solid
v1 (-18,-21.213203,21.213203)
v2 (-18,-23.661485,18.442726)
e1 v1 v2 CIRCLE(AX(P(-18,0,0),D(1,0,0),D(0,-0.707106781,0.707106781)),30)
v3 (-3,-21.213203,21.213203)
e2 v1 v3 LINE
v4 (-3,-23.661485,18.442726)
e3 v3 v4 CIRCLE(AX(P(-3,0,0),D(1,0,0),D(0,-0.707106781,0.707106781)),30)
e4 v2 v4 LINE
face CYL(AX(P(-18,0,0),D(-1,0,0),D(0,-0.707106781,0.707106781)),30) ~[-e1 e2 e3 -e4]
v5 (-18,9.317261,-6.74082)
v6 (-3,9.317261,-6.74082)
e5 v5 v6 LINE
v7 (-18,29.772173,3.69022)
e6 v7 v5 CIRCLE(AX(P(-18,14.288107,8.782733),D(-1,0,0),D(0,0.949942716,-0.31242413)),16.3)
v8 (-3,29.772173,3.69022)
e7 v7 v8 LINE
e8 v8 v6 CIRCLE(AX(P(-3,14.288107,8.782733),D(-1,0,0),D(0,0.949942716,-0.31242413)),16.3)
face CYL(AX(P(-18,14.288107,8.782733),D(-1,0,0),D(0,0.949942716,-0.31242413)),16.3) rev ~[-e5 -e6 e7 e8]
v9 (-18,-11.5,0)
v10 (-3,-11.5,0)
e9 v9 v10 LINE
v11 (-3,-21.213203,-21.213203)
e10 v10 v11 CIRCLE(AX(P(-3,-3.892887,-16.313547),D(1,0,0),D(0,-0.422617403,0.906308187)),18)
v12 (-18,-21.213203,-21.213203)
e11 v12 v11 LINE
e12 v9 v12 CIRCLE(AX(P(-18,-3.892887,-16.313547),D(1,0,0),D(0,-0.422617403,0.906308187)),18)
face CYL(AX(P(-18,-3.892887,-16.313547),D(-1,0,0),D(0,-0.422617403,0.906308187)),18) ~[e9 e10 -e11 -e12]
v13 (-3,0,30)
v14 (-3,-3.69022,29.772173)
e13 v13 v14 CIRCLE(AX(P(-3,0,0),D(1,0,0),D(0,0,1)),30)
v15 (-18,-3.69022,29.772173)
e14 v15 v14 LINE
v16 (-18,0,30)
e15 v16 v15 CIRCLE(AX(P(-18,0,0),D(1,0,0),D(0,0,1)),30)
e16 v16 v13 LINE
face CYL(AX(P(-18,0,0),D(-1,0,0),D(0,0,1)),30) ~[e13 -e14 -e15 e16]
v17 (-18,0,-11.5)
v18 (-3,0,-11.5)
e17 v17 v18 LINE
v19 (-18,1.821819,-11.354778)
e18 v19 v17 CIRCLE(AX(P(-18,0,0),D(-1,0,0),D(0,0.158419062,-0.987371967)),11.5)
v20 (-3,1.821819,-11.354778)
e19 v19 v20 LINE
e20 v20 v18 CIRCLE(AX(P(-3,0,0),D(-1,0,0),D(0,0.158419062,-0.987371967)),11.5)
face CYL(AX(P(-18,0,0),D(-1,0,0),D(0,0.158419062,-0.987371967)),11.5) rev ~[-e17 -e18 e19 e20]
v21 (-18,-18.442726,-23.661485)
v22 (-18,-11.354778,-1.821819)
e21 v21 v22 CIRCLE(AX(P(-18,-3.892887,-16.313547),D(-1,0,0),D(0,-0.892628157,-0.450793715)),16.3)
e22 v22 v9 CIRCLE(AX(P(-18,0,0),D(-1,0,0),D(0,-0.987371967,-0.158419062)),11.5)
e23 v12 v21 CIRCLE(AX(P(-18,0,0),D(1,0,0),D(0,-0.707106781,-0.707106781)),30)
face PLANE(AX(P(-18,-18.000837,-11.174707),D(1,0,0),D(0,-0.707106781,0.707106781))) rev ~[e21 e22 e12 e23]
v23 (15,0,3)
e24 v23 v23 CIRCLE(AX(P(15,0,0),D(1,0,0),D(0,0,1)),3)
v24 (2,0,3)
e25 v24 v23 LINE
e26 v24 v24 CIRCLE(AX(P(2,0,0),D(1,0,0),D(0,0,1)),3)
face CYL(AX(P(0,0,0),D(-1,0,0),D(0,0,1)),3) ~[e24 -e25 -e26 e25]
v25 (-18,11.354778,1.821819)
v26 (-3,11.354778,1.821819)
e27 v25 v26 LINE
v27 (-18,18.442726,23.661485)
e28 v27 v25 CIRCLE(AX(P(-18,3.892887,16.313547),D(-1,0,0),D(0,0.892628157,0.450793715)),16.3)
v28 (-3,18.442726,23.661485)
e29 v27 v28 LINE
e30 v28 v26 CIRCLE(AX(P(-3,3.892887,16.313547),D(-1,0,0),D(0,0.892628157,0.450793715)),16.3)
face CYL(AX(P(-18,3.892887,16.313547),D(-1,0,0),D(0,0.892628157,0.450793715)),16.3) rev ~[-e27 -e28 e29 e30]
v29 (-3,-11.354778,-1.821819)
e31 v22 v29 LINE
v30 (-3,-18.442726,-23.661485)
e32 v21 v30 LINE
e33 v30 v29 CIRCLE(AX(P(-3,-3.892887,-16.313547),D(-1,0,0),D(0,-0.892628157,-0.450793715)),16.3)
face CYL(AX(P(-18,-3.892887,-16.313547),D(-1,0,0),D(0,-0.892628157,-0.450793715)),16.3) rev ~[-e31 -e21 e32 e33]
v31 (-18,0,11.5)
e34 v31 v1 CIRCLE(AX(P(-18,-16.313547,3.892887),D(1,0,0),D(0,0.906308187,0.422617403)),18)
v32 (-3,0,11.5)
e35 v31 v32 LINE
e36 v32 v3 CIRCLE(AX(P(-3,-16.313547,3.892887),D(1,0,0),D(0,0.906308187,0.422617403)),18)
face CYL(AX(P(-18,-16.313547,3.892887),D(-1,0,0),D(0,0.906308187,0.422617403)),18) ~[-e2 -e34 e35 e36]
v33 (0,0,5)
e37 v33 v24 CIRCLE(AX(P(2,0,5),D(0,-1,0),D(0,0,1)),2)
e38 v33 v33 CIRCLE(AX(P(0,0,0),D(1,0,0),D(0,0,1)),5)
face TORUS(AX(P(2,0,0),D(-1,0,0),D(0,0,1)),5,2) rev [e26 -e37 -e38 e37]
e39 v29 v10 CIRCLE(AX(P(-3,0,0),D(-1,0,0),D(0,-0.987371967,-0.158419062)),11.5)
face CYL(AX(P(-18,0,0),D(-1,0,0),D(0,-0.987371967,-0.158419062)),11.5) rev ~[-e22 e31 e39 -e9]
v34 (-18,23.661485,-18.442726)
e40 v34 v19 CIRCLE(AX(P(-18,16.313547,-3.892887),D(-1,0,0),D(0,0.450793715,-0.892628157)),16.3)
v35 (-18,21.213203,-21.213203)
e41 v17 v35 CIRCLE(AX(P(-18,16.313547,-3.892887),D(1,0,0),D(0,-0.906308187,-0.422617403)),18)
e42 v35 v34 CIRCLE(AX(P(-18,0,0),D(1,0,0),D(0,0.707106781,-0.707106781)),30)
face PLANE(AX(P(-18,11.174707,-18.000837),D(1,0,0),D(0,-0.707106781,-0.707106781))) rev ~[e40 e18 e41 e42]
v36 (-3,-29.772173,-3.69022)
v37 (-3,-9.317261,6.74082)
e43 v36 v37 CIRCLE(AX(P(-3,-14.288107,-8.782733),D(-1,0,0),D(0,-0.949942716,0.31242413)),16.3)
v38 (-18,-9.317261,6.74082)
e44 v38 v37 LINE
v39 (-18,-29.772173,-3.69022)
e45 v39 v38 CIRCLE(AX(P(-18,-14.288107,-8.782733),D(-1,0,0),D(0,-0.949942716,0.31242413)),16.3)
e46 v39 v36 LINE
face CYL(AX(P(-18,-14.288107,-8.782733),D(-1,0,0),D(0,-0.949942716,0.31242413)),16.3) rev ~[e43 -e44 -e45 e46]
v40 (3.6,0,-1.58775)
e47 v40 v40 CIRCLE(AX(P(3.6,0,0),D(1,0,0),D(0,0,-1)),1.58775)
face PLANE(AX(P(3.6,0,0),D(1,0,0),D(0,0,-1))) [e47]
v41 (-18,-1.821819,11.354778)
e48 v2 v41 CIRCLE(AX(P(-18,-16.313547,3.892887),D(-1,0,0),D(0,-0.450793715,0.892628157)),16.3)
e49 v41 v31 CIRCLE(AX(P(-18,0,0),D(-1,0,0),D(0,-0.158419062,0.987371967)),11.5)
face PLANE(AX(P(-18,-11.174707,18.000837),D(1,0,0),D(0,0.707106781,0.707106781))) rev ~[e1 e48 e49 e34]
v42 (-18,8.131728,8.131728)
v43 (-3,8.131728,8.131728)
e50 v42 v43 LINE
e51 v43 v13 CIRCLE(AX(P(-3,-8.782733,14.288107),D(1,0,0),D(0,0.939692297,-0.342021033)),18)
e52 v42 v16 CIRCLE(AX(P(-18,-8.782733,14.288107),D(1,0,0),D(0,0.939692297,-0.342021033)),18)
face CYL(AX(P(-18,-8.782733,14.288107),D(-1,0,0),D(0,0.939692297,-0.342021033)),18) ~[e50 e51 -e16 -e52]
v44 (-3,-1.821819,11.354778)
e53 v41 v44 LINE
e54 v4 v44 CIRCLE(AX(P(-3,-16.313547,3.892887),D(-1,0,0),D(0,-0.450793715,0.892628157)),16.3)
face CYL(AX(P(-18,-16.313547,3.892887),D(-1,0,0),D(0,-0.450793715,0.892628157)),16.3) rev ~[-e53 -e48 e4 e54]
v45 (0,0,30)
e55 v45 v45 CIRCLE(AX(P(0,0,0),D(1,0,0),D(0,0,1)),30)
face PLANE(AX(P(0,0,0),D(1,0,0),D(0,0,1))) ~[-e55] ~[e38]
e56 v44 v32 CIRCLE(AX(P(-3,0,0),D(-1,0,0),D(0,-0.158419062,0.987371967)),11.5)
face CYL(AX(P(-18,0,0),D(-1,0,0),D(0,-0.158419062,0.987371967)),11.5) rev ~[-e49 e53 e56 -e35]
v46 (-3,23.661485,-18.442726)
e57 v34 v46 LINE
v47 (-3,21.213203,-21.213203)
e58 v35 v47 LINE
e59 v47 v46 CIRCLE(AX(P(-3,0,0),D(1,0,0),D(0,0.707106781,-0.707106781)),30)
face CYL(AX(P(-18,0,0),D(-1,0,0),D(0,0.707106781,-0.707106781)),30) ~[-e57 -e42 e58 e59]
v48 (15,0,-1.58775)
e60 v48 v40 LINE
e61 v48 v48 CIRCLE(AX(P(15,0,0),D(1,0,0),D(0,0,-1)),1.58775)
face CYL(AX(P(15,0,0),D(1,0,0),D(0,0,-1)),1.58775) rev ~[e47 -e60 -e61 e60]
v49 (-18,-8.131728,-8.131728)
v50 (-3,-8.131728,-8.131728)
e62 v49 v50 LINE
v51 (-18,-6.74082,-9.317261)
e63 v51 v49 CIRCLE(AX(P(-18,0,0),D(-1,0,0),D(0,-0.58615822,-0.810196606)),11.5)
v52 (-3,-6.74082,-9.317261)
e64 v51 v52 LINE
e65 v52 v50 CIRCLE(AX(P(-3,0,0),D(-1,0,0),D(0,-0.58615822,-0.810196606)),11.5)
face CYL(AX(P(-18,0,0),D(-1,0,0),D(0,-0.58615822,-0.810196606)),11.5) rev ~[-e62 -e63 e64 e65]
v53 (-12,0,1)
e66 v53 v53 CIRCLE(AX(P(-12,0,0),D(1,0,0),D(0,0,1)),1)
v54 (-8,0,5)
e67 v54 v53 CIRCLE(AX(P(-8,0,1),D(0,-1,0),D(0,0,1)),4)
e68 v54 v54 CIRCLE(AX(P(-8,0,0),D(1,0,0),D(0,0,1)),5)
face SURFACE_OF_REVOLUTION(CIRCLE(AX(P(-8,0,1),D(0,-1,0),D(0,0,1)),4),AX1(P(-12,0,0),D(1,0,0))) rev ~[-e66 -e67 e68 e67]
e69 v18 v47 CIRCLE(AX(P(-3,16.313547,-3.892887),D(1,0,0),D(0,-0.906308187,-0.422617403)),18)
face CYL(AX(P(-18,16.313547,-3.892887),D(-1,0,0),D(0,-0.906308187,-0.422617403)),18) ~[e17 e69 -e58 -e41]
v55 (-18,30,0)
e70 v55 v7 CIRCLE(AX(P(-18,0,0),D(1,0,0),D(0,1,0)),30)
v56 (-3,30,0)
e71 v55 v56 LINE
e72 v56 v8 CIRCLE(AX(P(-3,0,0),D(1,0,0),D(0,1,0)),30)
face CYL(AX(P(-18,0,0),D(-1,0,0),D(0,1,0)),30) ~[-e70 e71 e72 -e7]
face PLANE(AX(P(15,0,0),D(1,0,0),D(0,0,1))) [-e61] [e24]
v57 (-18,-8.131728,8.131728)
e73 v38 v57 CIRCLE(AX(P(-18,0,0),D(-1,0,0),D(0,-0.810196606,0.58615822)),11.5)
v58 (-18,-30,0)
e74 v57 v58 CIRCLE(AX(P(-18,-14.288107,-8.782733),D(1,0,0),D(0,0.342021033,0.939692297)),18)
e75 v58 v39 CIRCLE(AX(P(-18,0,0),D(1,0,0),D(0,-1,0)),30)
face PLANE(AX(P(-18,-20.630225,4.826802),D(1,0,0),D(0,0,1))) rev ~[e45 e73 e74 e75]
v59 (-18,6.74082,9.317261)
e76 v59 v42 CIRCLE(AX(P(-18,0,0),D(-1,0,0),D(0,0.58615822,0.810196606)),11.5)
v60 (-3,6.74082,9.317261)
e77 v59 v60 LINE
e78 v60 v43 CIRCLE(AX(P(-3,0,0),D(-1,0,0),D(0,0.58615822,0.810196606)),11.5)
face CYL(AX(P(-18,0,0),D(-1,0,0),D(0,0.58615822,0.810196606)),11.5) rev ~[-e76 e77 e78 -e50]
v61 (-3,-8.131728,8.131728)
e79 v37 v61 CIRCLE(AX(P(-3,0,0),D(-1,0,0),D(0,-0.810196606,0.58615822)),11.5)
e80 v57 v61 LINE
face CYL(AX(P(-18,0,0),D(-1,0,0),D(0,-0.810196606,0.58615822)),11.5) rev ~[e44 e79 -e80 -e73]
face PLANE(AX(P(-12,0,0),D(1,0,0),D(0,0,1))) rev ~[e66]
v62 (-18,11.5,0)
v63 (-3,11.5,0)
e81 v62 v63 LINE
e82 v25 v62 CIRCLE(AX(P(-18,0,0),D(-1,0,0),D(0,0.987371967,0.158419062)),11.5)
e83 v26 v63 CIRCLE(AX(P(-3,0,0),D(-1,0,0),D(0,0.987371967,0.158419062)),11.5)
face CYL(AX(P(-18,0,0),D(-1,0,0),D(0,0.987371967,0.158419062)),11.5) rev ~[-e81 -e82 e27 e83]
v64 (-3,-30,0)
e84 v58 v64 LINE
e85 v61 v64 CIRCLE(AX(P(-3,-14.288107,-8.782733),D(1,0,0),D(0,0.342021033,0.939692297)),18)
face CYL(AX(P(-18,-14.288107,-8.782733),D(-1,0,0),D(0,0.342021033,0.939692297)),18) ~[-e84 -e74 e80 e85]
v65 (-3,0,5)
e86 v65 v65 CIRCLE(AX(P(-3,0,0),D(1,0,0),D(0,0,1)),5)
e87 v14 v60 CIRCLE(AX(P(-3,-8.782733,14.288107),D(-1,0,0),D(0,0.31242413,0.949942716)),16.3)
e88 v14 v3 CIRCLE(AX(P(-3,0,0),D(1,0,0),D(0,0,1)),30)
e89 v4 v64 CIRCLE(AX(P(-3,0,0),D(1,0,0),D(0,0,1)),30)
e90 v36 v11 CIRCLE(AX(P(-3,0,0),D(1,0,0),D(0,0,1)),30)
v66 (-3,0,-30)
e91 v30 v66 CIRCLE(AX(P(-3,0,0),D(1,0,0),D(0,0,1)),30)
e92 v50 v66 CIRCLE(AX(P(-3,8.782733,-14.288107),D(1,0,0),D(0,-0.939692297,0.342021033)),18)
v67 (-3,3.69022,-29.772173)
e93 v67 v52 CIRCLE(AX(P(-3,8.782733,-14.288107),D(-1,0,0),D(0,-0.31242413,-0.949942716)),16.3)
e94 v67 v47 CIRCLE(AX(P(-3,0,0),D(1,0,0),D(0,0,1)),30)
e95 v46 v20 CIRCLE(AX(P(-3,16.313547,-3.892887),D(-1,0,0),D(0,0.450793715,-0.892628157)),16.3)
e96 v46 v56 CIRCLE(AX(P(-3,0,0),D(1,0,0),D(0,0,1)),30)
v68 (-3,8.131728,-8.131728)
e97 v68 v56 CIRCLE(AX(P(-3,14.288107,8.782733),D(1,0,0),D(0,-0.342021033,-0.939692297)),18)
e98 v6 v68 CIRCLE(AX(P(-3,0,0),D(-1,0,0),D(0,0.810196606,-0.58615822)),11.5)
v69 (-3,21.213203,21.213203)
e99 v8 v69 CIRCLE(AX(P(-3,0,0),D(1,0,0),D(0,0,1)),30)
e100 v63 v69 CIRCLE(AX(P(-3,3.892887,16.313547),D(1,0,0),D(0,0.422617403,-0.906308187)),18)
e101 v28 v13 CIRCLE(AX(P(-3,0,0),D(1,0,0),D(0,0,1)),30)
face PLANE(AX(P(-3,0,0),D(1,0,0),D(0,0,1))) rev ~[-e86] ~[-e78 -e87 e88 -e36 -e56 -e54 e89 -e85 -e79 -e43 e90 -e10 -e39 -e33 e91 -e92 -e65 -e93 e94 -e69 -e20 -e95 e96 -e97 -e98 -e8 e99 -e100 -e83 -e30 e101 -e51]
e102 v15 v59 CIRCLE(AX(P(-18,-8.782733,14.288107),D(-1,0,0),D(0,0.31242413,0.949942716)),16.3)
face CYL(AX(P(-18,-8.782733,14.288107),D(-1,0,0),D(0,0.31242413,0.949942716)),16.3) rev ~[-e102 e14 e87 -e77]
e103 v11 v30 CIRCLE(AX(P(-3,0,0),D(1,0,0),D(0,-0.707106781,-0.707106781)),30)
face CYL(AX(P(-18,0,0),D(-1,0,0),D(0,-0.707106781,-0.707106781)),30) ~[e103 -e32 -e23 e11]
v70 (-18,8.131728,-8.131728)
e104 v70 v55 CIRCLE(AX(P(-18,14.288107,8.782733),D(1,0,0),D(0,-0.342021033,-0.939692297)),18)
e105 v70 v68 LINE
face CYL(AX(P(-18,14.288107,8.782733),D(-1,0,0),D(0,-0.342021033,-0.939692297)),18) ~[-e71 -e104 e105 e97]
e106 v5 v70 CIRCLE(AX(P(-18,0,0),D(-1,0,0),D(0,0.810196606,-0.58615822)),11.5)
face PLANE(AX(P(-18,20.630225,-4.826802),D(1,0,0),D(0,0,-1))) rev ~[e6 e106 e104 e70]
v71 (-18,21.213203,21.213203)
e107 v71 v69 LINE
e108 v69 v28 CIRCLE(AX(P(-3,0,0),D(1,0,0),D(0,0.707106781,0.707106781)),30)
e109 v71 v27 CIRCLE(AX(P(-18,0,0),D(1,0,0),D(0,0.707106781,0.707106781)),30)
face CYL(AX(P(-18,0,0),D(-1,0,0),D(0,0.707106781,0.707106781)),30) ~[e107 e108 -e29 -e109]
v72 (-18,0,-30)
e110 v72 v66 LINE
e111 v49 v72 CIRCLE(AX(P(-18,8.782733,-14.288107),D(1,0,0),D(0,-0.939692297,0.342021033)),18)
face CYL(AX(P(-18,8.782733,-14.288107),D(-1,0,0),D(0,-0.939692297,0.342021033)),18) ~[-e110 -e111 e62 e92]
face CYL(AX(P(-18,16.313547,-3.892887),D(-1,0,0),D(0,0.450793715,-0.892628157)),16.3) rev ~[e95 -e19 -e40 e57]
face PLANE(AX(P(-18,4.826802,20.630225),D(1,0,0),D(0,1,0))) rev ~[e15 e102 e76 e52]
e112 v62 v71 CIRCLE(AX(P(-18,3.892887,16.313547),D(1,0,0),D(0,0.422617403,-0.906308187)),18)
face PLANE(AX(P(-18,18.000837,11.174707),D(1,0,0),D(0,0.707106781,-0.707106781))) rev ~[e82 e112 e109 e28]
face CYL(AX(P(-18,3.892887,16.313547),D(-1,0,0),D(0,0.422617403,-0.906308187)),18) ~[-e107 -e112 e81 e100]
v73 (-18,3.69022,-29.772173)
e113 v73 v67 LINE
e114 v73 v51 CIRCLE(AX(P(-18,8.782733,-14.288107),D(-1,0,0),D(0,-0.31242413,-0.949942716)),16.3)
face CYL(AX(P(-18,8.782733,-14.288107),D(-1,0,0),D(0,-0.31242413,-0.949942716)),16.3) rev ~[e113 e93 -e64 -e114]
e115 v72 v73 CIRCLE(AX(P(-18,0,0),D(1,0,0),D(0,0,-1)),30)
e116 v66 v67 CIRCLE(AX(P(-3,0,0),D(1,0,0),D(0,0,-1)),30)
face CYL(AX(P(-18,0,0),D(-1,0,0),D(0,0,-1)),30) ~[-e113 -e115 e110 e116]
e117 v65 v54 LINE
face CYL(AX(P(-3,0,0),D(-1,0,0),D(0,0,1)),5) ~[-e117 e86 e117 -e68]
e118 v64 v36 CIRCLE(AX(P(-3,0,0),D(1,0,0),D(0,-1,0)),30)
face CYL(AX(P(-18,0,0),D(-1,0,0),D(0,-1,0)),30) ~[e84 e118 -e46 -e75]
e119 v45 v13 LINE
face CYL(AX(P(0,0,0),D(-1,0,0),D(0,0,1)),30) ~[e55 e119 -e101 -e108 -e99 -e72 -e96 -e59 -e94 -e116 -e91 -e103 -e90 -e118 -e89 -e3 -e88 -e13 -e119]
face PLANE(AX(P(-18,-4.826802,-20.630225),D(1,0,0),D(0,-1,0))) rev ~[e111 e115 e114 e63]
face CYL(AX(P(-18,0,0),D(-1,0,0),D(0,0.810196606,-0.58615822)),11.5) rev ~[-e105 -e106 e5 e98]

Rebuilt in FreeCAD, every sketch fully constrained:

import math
import FreeCAD as App
import Part
import Sketcher

V = App.Vector


def edges_at(feature, points):
    """Names of the edges that pass closest to the given points."""
    edges = feature.Shape.Edges
    near = lambda p: min(range(len(edges)), key=lambda i: edges[i].distToShape(Part.Vertex(*p))[0])
    return sorted({f"Edge{near(p) + 1}" for p in points})

doc = App.newDocument("Part")
body = doc.addObject("PartDesign::Body", "Body")

# Sketch on XZ plane
sketch1 = doc.addObject("Sketcher::SketchObject", "Sketch")
body.addObject(sketch1)
sketch1.AttachmentSupport = (doc.XZ_Plane, [""])
sketch1.MapMode = "FlatFace"
sketch1.addGeometry([
    Part.LineSegment(V(0, 0, 0), V(0, -30, 0)),  # 0
    Part.LineSegment(V(0, -30, 0), V(-3, -30, 0)),  # 1
    Part.LineSegment(V(-3, -30, 0), V(-3, -5, 0)),  # 2
    Part.LineSegment(V(-3, -5, 0), V(-8, -5, 0)),  # 3
    Part.ArcOfCircle(Part.Circle(V(-8, -1, 0), V(0, 0, 1), 4), math.radians(180), math.radians(270)),  # 4
    Part.LineSegment(V(-12, -1, 0), V(-12, 0, 0)),  # 5
    Part.LineSegment(V(-12, 0, 0), V(0, 0, 0)),  # 6
], False)
sketch1.addConstraint([
    Sketcher.Constraint("Coincident", 0, 2, 1, 1),
    Sketcher.Constraint("Coincident", 1, 2, 2, 1),
    Sketcher.Constraint("Coincident", 2, 2, 3, 1),
    Sketcher.Constraint("Tangent", 3, 2, 4, 2),
    Sketcher.Constraint("Tangent", 4, 1, 5, 1),
    Sketcher.Constraint("Coincident", 5, 2, 6, 1),
    Sketcher.Constraint("Coincident", 6, 2, 0, 1),
    Sketcher.Constraint("Vertical", 0),
    Sketcher.Constraint("Horizontal", 1),
    Sketcher.Constraint("Vertical", 2),
    Sketcher.Constraint("Horizontal", 3),
    Sketcher.Constraint("Vertical", 5),
    Sketcher.Constraint("Horizontal", 6),
    Sketcher.Constraint("Coincident", 6, 2, -1, 1),
    Sketcher.Constraint("Radius", 4, 4.0),
    Sketcher.Constraint("DistanceX", 1, 2, 1, 1, 3.0),
    Sketcher.Constraint("DistanceX", 3, 2, 3, 1, 5.0),
    Sketcher.Constraint("DistanceY", 0, 2, 0, 1, 30.0),
    Sketcher.Constraint("DistanceY", 2, 1, 2, 2, 25.0),
])
revolution = doc.addObject("PartDesign::Revolution", "Revolution")
body.addObject(revolution)
revolution.Profile = sketch1
revolution.ReferenceAxis = (sketch1, ["H_Axis"])
revolution.Angle = 360

# Sketch on YZ plane
sketch2 = doc.addObject("Sketcher::SketchObject", "Sketch001")
body.addObject(sketch2)
sketch2.AttachmentSupport = (doc.YZ_Plane, [""])
sketch2.MapMode = "FlatFace"
sketch2.AttachmentOffset = App.Placement(V(0, 0, -18), App.Rotation())
sketch2.addGeometry([
    Part.ArcOfCircle(Part.Circle(V(0, 0, 0), V(0, 0, 1), 11.5), math.radians(-45), math.radians(-35.88)),
    Part.ArcOfCircle(Part.Circle(V(14.3, 8.8, 0), V(0, 0, 1), 16.3), math.radians(-108), math.radians(-18)),
    Part.ArcOfCircle(Part.Circle(V(0, 0, 0), V(0, 0, 1), 30), math.radians(0), math.radians(7.07)),
    Part.ArcOfCircle(Part.Circle(V(14.3, 8.8, 0), V(0, 0, 1), 18), math.radians(-110), math.radians(-29)),
], False)
sketch2.addConstraint([
    Sketcher.Constraint("Coincident", 0, 2, 1, 1),
    Sketcher.Constraint("Coincident", 1, 2, 2, 2),
    Sketcher.Constraint("Coincident", 2, 1, 3, 2),
    Sketcher.Constraint("Coincident", 3, 1, 0, 1),
    Sketcher.Constraint("Coincident", 0, 3, -1, 1),
    Sketcher.Constraint("Coincident", 2, 3, -1, 1),
    Sketcher.Constraint("Coincident", 3, 3, 1, 3),
    Sketcher.Constraint("PointOnObject", 2, 1, -1),
    Sketcher.Constraint("Radius", 2, 30.0),
    Sketcher.Constraint("Radius", 3, 18.0),
    Sketcher.Constraint("Radius", 0, 11.5),
    Sketcher.Constraint("Radius", 1, 16.3),
    Sketcher.Constraint("DistanceX", -1, 1, 0, 2, 9.317261),
])
pad1 = doc.addObject("PartDesign::Pad", "Pad")
body.addObject(pad1)
pad1.Profile = sketch2
pad1.Length = 15
doc.recompute()

polarpattern = doc.addObject("PartDesign::PolarPattern", "PolarPattern")
body.addObject(polarpattern)
polarpattern.Originals = [pad1]
polarpattern.Axis = (doc.X_Axis, [""])
polarpattern.Angle = 360
polarpattern.Occurrences = 8
body.Tip = polarpattern

# Sketch on YZ plane
sketch3 = doc.addObject("Sketcher::SketchObject", "Sketch002")
body.addObject(sketch3)
sketch3.AttachmentSupport = (doc.YZ_Plane, [""])
sketch3.MapMode = "FlatFace"
sketch3.addGeometry(Part.Circle(V(0, 0, 0), V(0, 0, 1), 3), False)
sketch3.addConstraint([
    Sketcher.Constraint("Coincident", 0, 3, -1, 1),
    Sketcher.Constraint("Diameter", 0, 6.0),
])
pad2 = doc.addObject("PartDesign::Pad", "Pad001")
body.addObject(pad2)
pad2.Profile = sketch3
pad2.Length = 15

# Sketch on YZ plane
sketch4 = doc.addObject("Sketcher::SketchObject", "Sketch003")
body.addObject(sketch4)
sketch4.AttachmentSupport = (doc.YZ_Plane, [""])
sketch4.MapMode = "FlatFace"
sketch4.AttachmentOffset = App.Placement(V(0, 0, 15), App.Rotation())
sketch4.addGeometry(Part.Circle(V(0, 0, 0), V(0, 0, 1), 1.6), False)
sketch4.addConstraint([
    Sketcher.Constraint("Coincident", 0, 3, -1, 1),
    Sketcher.Constraint("Diameter", 0, 3.1755),
])
pocket1 = doc.addObject("PartDesign::Pocket", "Pocket")
body.addObject(pocket1)
pocket1.Profile = sketch4
pocket1.Length = 11.4
doc.recompute()

fillet = doc.addObject("PartDesign::Fillet", "Fillet")
body.addObject(fillet)
fillet.Base = (pocket1, edges_at(pocket1, [(0, 0, -3)]))
fillet.Radius = 2

doc.recompute()
